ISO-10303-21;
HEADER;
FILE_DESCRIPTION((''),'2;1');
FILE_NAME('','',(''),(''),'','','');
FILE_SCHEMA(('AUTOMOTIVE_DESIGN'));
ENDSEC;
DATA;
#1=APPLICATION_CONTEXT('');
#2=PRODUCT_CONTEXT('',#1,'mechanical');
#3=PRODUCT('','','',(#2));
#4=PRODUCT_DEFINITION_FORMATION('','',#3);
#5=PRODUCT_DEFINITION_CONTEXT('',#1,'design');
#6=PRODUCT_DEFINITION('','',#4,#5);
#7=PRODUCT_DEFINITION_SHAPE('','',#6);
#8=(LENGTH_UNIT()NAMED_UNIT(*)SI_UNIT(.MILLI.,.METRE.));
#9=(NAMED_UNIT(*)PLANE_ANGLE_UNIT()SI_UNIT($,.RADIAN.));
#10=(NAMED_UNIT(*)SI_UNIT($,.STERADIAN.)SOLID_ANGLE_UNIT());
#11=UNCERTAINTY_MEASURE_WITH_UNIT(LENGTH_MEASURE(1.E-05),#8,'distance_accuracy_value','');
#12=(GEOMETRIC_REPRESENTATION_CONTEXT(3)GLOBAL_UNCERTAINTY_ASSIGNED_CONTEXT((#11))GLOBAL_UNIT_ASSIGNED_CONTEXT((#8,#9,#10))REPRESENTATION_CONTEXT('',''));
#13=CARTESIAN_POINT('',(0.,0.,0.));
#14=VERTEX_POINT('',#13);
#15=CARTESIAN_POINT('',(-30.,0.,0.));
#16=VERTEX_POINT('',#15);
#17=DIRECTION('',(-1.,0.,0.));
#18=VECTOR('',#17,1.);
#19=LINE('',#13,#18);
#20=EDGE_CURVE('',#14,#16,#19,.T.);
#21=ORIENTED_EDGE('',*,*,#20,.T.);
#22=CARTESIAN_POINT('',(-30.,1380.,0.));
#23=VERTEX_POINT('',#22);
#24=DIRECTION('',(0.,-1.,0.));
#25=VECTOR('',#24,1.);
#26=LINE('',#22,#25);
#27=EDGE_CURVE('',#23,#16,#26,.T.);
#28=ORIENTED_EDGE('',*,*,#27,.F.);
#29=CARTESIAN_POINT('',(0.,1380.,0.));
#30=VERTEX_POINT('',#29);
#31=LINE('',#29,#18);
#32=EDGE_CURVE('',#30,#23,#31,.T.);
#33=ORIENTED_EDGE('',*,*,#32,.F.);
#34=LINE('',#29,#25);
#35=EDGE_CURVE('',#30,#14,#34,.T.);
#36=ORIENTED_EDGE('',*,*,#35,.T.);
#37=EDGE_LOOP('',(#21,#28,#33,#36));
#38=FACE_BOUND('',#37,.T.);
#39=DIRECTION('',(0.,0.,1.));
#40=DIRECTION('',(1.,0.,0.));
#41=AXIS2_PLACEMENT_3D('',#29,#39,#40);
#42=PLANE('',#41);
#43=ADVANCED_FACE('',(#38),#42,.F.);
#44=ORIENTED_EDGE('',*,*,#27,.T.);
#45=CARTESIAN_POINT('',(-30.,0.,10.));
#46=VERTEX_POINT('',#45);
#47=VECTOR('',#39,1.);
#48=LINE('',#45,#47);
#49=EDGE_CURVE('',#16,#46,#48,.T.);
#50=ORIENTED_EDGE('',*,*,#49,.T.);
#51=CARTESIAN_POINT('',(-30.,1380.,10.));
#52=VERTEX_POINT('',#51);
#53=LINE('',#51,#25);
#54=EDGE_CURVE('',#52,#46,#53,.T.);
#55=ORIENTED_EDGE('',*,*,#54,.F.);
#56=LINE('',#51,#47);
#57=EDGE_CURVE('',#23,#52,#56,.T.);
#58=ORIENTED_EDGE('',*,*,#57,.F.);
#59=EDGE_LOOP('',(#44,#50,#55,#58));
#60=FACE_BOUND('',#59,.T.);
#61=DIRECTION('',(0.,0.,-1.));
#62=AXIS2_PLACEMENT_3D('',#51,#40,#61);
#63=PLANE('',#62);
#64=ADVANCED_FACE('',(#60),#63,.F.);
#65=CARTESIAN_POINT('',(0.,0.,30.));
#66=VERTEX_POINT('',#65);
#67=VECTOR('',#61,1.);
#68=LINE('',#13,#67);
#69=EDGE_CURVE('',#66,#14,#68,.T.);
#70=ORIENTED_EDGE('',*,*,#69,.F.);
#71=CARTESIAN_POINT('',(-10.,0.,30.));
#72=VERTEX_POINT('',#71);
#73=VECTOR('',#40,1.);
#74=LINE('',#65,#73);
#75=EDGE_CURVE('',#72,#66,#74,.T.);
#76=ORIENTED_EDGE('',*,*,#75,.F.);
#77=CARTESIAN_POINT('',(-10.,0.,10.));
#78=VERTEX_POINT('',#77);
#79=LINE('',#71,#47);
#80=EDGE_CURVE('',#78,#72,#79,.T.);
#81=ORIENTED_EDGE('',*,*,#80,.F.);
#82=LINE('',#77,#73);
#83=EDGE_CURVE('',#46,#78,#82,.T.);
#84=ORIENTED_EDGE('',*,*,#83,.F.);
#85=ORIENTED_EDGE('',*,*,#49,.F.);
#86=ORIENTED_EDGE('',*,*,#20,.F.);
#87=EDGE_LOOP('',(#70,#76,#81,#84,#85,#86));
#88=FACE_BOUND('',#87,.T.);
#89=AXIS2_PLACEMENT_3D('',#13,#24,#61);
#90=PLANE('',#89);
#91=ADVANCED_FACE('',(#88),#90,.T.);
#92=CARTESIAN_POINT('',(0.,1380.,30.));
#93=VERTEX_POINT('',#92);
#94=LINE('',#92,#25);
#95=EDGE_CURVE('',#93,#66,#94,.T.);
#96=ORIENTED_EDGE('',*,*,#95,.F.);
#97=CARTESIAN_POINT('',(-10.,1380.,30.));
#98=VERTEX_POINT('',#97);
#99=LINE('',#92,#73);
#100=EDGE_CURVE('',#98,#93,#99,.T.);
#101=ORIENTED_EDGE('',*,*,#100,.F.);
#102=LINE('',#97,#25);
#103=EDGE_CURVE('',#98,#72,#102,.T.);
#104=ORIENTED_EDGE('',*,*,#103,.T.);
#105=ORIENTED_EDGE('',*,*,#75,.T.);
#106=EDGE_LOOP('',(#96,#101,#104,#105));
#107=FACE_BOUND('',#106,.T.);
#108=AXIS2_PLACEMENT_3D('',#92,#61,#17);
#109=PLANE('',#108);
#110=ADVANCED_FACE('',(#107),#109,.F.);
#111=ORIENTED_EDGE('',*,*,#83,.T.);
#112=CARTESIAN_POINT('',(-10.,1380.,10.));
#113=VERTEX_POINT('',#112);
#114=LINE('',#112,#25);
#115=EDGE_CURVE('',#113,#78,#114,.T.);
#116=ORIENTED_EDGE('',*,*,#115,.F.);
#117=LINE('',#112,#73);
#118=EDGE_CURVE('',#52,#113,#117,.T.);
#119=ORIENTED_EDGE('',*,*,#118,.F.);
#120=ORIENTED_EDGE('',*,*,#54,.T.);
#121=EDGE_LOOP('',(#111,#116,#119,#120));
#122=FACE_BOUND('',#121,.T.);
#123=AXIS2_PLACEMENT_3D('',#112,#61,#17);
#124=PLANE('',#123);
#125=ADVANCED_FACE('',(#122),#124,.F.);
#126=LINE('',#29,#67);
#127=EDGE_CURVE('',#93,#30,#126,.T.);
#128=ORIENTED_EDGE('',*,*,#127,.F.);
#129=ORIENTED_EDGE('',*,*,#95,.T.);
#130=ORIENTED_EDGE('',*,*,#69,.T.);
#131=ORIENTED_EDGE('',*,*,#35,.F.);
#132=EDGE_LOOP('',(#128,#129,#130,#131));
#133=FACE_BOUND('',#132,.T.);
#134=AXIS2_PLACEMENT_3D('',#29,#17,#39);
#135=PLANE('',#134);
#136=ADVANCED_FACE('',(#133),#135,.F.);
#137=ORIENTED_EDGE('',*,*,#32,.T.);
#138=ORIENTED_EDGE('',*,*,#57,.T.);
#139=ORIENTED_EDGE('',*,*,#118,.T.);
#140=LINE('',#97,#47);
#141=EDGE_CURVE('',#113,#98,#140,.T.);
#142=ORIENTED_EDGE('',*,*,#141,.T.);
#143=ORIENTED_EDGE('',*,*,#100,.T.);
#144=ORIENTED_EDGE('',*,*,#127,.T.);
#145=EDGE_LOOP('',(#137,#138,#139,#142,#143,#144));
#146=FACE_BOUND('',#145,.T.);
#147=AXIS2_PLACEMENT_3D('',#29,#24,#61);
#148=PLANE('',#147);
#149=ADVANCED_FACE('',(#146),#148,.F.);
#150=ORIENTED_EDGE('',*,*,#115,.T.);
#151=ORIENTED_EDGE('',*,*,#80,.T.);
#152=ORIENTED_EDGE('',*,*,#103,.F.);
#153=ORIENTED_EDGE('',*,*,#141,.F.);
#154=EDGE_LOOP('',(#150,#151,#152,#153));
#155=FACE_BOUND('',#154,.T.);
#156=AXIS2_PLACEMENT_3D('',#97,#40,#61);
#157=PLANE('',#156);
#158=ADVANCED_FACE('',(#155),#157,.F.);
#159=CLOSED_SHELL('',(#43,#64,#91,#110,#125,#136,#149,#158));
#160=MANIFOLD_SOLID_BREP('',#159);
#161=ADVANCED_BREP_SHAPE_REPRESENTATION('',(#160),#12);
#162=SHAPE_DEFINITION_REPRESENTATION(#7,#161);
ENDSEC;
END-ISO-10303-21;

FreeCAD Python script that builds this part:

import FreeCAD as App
import Part
import Sketcher
from FreeCAD import Vector

doc = App.newDocument("Part")
params = doc.addObject("Spreadsheet::Sheet", "Params")
for row, (alias, value) in enumerate([
    ("sketch1_width", "30 mm"),
    ("sketch1_width2", "20 mm"),
    ("pad1_length", "1380 mm"),
], start=1):
    params.set(f"A{row}", alias)
    params.set(f"B{row}", "=" + value)
    params.setAlias(f"B{row}", alias)

body = doc.addObject("PartDesign::Body", "Body")

# Sketch on XZ plane
sketch1 = doc.addObject("Sketcher::SketchObject", "Sketch")
body.addObject(sketch1)
sketch1.AttachmentSupport = (doc.XZ_Plane, [""])
sketch1.MapMode = "FlatFace"
sketch1.addGeometry([
    Part.LineSegment(Vector(0, 0, 0), Vector(-30, 0, 0)),  # 0
    Part.LineSegment(Vector(-30, 0, 0), Vector(-30, 10, 0)),  # 1
    Part.LineSegment(Vector(-30, 10, 0), Vector(-10, 10, 0)),  # 2
    Part.LineSegment(Vector(-10, 10, 0), Vector(-10, 30, 0)),  # 3
    Part.LineSegment(Vector(-10, 30, 0), Vector(0, 30, 0)),  # 4
    Part.LineSegment(Vector(0, 30, 0), Vector(0, 0, 0)),  # 5
], False)
sketch1.addConstraint([
    Sketcher.Constraint("Coincident", 0, 2, 1, 1),
    Sketcher.Constraint("Coincident", 1, 2, 2, 1),
    Sketcher.Constraint("Coincident", 2, 2, 3, 1),
    Sketcher.Constraint("Coincident", 3, 2, 4, 1),
    Sketcher.Constraint("Coincident", 4, 2, 5, 1),
    Sketcher.Constraint("Coincident", 5, 2, 0, 1),
    Sketcher.Constraint("Horizontal", 0),
    Sketcher.Constraint("Vertical", 1),
    Sketcher.Constraint("Horizontal", 2),
    Sketcher.Constraint("Vertical", 3),
    Sketcher.Constraint("Horizontal", 4),
    Sketcher.Constraint("Vertical", 5),
    Sketcher.Constraint("Coincident", 5, 2, -1, 1),
    Sketcher.Constraint("Equal", 4, 1),
    Sketcher.Constraint("Equal", 2, 3),
    Sketcher.Constraint("DistanceX", 0, 2, 0, 1, 30.0),
    Sketcher.Constraint("DistanceX", 2, 1, 2, 2, 20.0),
])
sketch1.setExpression("Constraints[15]", "Params.sketch1_width")
sketch1.setExpression("Constraints[16]", "Params.sketch1_width2")
pad1 = doc.addObject("PartDesign::Pad", "Pad")
body.addObject(pad1)
pad1.Profile = sketch1
pad1.setExpression("Length", "Params.pad1_length")
pad1.Reversed = True

doc.recompute()
